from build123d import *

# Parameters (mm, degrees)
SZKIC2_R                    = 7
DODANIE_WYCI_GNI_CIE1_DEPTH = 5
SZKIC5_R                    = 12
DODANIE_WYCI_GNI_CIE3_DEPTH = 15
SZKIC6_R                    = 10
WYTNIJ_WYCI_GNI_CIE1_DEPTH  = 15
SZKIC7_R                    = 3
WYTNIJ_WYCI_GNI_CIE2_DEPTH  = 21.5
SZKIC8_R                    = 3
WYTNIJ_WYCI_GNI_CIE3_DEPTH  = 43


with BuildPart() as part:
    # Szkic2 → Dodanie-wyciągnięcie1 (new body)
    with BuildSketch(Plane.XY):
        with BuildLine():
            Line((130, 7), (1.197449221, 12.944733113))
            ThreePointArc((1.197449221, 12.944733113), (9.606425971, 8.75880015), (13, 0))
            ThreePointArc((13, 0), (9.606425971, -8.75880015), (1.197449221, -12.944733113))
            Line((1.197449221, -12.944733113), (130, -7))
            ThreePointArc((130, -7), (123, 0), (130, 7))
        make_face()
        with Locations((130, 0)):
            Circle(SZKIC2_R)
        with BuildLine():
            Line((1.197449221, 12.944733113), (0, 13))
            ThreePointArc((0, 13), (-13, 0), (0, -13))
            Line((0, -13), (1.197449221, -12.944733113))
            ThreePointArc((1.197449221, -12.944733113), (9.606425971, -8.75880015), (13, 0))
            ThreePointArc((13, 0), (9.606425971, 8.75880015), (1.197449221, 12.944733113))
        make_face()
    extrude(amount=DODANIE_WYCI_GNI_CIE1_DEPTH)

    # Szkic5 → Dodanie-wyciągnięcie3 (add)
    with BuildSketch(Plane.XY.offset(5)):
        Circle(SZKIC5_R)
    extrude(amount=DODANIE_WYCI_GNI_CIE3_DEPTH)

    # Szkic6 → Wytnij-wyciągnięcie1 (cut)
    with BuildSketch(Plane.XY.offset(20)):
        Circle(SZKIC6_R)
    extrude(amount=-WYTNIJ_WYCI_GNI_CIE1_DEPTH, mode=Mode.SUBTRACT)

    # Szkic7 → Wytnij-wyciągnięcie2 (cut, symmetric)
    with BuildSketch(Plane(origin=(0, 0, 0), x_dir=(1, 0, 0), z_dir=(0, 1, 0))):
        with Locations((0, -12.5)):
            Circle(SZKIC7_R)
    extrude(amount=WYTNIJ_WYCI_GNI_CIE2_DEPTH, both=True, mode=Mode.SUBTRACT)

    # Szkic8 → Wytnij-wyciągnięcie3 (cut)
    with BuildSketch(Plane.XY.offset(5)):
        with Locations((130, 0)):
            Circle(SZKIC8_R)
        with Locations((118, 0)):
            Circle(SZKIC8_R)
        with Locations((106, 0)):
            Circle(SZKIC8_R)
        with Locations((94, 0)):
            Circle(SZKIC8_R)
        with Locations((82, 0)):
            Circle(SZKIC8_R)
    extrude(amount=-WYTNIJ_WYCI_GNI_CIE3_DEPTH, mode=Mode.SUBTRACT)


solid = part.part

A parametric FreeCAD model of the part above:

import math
import FreeCAD as App
import Part
import Sketcher
Q = App.Units.Quantity

doc = App.newDocument("Part")
body = doc.addObject("PartDesign::Body", "Body")

# Sketch on XY plane
sketch1 = doc.addObject("Sketcher::SketchObject", "Sketch")
body.addObject(sketch1)
sketch1.AttachmentSupport = (doc.XY_Plane, [""])
sketch1.MapMode = "FlatFace"
sketch1.addGeometry(Part.LineSegment(App.Vector(130, 7, 0), App.Vector(1.2, 12.9, 0)), False)
sketch1.addGeometry(Part.LineSegment(App.Vector(1.2, 12.9, 0), App.Vector(0, 13, 0)), False)
sketch1.addGeometry(Part.ArcOfCircle(Part.Circle(App.Vector(0, 0, 0), App.Vector(0, 0, 1), 13), math.radians(90), math.radians(270)), False)
sketch1.addGeometry(Part.LineSegment(App.Vector(0, -13, 0), App.Vector(1.2, -12.9, 0)), False)
sketch1.addGeometry(Part.LineSegment(App.Vector(1.2, -12.9, 0), App.Vector(130, -7, 0)), False)
sketch1.addGeometry(Part.ArcOfCircle(Part.Circle(App.Vector(130, 0, 0), App.Vector(0, 0, 1), 7), math.radians(-90), math.radians(90)), False)
sketch1.addConstraint(Sketcher.Constraint("Coincident", 0, 2, 1, 1))
sketch1.addConstraint(Sketcher.Constraint("Coincident", 1, 2, 2, 1))
sketch1.addConstraint(Sketcher.Constraint("Coincident", 2, 2, 3, 1))
sketch1.addConstraint(Sketcher.Constraint("Coincident", 3, 2, 4, 1))
sketch1.addConstraint(Sketcher.Constraint("Coincident", 4, 2, 5, 1))
sketch1.addConstraint(Sketcher.Constraint("Coincident", 5, 2, 0, 1))
sketch1.addConstraint(Sketcher.Constraint("Coincident", 2, 3, -1, 1))
sketch1.addConstraint(Sketcher.Constraint("Symmetric", 0, 2, 3, 2, -1))
sketch1.addConstraint(Sketcher.Constraint("Symmetric", 4, 2, 5, 2, -1))
sketch1.addConstraint(Sketcher.Constraint("PointOnObject", 1, 2, -2))
sketch1.addConstraint(Sketcher.Constraint("PointOnObject", 2, 2, -2))
sketch1.addConstraint(Sketcher.Constraint("Parallel", 0, 1))
sketch1.addConstraint(Sketcher.Constraint("Vertical", 5, 3, 4, 2))
sketch1.addConstraint(Sketcher.Constraint("Radius", 2, Q("13 mm")))
sketch1.addConstraint(Sketcher.Constraint("Radius", 5, Q("7 mm")))
sketch1.addConstraint(Sketcher.Constraint("DistanceX", -1, 1, 5, 3, Q("130 mm")))
sketch1.addConstraint(Sketcher.Constraint("DistanceX", -1, 1, 0, 2, Q("1.197449 mm")))
pad1 = doc.addObject("PartDesign::Pad", "Pad")
body.addObject(pad1)
pad1.Profile = sketch1
pad1.Length = 5

# Sketch on XY plane
sketch2 = doc.addObject("Sketcher::SketchObject", "Sketch001")
body.addObject(sketch2)
sketch2.AttachmentSupport = (doc.XY_Plane, [""])
sketch2.MapMode = "FlatFace"
sketch2.AttachmentOffset = App.Placement(App.Vector(0, 0, 5), App.Rotation())
sketch2.addGeometry(Part.Circle(App.Vector(0, 0, 0), App.Vector(0, 0, 1), 12), False)
sketch2.addConstraint(Sketcher.Constraint("Coincident", 0, 3, -1, 1))
sketch2.addConstraint(Sketcher.Constraint("Diameter", 0, Q("24 mm")))
pad2 = doc.addObject("PartDesign::Pad", "Pad001")
body.addObject(pad2)
pad2.Profile = sketch2
pad2.Length = 15

# Sketch on XY plane
sketch3 = doc.addObject("Sketcher::SketchObject", "Sketch002")
body.addObject(sketch3)
sketch3.AttachmentSupport = (doc.XY_Plane, [""])
sketch3.MapMode = "FlatFace"
sketch3.AttachmentOffset = App.Placement(App.Vector(0, 0, 20), App.Rotation())
sketch3.addGeometry(Part.Circle(App.Vector(0, 0, 0), App.Vector(0, 0, 1), 10), False)
sketch3.addConstraint(Sketcher.Constraint("Coincident", 0, 3, -1, 1))
sketch3.addConstraint(Sketcher.Constraint("Diameter", 0, Q("20 mm")))
pocket1 = doc.addObject("PartDesign::Pocket", "Pocket")
body.addObject(pocket1)
pocket1.Profile = sketch3
pocket1.Length = 15

# Sketch on XZ plane
sketch4 = doc.addObject("Sketcher::SketchObject", "Sketch003")
body.addObject(sketch4)
sketch4.AttachmentSupport = (doc.XZ_Plane, [""])
sketch4.MapMode = "FlatFace"
sketch4.addGeometry(Part.Circle(App.Vector(0, 12.5, 0), App.Vector(0, 0, 1), 3), False)
sketch4.addConstraint(Sketcher.Constraint("PointOnObject", 0, 3, -2))
sketch4.addConstraint(Sketcher.Constraint("Diameter", 0, Q("6 mm")))
sketch4.addConstraint(Sketcher.Constraint("DistanceY", -1, 1, 0, 3, Q("12.5 mm")))
pocket2 = doc.addObject("PartDesign::Pocket", "Pocket001")
body.addObject(pocket2)
pocket2.Profile = sketch4
pocket2.Length = 43
pocket2.Midplane = True

# Sketch on XY plane
sketch5 = doc.addObject("Sketcher::SketchObject", "Sketch004")
body.addObject(sketch5)
sketch5.AttachmentSupport = (doc.XY_Plane, [""])
sketch5.MapMode = "FlatFace"
sketch5.AttachmentOffset = App.Placement(App.Vector(0, 0, 5), App.Rotation())
sketch5.addGeometry(Part.Circle(App.Vector(130, 0, 0), App.Vector(0, 0, 1), 3), False)
sketch5.addGeometry(Part.Circle(App.Vector(118, 0, 0), App.Vector(0, 0, 1), 3), False)
sketch5.addGeometry(Part.Circle(App.Vector(106, 0, 0), App.Vector(0, 0, 1), 3), False)
sketch5.addGeometry(Part.Circle(App.Vector(94, 0, 0), App.Vector(0, 0, 1), 3), False)
sketch5.addGeometry(Part.Circle(App.Vector(82, 0, 0), App.Vector(0, 0, 1), 3), False)
sketch5.addConstraint(Sketcher.Constraint("Equal", 0, 1))
sketch5.addConstraint(Sketcher.Constraint("Equal", 1, 2))
sketch5.addConstraint(Sketcher.Constraint("Equal", 2, 3))
sketch5.addConstraint(Sketcher.Constraint("Equal", 3, 4))
sketch5.addConstraint(Sketcher.Constraint("PointOnObject", 0, 3, -1))
sketch5.addConstraint(Sketcher.Constraint("PointOnObject", 1, 3, -1))
sketch5.addConstraint(Sketcher.Constraint("PointOnObject", 2, 3, -1))
sketch5.addConstraint(Sketcher.Constraint("PointOnObject", 3, 3, -1))
sketch5.addConstraint(Sketcher.Constraint("PointOnObject", 4, 3, -1))
sketch5.addConstraint(Sketcher.Constraint("Diameter", 0, Q("6 mm")))
sketch5.addConstraint(Sketcher.Constraint("DistanceX", -1, 1, 0, 3, Q("130 mm")))
sketch5.addConstraint(Sketcher.Constraint("DistanceX", -1, 1, 1, 3, Q("118 mm")))
sketch5.addConstraint(Sketcher.Constraint("DistanceX", -1, 1, 2, 3, Q("106 mm")))
sketch5.addConstraint(Sketcher.Constraint("DistanceX", -1, 1, 3, 3, Q("94 mm")))
sketch5.addConstraint(Sketcher.Constraint("DistanceX", -1, 1, 4, 3, Q("82 mm")))
pocket3 = doc.addObject("PartDesign::Pocket", "Pocket002")
body.addObject(pocket3)
pocket3.Profile = sketch5
pocket3.Length = 43

doc.recompute()
